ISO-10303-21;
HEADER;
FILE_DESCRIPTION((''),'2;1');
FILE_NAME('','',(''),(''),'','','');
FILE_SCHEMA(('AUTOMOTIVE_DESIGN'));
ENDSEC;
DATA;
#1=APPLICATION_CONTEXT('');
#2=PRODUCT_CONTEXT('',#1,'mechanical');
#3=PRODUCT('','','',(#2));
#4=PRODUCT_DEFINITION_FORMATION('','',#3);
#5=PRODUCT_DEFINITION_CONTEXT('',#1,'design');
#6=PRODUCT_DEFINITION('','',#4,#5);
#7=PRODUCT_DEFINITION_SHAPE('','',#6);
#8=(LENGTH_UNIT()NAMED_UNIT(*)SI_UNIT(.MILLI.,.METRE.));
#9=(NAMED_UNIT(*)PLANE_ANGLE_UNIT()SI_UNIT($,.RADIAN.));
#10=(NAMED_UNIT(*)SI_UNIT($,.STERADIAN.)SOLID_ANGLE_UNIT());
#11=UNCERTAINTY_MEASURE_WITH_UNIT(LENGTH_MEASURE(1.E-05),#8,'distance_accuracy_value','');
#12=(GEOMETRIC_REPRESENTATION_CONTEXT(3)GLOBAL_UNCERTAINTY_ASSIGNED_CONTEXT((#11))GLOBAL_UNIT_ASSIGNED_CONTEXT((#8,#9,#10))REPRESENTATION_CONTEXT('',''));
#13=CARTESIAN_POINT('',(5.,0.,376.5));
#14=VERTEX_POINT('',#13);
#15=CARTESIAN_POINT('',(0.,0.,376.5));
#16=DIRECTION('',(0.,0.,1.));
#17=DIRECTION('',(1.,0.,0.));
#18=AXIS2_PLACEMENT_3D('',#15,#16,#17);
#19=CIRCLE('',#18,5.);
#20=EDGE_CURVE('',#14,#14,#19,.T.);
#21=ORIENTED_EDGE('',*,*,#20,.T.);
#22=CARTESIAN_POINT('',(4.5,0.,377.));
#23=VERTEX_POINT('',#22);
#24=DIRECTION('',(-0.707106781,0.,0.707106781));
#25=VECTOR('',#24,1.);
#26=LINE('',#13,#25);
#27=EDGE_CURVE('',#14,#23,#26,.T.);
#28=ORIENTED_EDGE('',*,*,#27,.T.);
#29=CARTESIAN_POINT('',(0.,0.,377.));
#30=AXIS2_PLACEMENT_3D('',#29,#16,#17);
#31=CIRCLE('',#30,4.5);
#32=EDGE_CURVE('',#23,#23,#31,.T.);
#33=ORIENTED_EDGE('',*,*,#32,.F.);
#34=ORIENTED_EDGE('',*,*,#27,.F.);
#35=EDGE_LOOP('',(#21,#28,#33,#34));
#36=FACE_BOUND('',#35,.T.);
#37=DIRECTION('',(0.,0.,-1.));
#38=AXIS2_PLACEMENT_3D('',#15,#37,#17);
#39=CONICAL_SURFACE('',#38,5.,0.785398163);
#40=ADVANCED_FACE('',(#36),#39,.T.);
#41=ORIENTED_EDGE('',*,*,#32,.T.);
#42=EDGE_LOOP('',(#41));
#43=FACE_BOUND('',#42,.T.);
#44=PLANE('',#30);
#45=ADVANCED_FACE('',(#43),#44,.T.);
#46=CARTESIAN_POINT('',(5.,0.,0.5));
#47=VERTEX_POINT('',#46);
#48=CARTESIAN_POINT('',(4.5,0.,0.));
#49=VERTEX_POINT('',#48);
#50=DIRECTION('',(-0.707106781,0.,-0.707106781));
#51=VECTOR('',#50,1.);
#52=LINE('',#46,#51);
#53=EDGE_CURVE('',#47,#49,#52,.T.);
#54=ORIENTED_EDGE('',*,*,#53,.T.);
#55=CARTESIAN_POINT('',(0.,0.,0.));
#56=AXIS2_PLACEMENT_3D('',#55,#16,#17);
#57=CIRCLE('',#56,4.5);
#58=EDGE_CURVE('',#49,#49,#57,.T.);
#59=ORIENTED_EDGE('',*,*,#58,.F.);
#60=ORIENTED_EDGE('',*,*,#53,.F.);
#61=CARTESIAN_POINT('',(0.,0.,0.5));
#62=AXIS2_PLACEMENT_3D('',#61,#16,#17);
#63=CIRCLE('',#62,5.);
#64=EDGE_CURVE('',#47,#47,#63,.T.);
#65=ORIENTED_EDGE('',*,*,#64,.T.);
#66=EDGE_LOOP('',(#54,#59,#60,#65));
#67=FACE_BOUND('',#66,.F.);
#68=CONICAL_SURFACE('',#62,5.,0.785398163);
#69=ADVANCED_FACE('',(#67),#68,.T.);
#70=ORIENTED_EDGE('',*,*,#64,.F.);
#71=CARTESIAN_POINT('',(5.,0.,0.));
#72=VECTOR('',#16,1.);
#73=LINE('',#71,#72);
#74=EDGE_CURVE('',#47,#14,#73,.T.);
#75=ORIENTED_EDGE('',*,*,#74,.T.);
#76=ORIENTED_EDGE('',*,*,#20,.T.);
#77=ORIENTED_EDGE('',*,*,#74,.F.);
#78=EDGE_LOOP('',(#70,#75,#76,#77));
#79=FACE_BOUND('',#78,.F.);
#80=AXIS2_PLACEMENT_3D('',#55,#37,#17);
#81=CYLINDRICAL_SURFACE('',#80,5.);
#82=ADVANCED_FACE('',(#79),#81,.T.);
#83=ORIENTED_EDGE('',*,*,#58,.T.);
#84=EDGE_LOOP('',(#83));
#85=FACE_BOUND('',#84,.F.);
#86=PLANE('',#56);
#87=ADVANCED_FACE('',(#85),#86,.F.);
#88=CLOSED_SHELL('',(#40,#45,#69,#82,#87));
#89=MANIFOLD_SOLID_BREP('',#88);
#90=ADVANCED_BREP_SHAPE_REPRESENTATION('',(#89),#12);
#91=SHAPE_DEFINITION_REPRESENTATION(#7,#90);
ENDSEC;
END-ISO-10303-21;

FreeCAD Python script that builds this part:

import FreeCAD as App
import Part
import Sketcher


def edges_at(feature, points):
    """Names of the edges that pass closest to the given points."""
    edges = feature.Shape.Edges
    near = lambda p: min(range(len(edges)), key=lambda i: edges[i].distToShape(Part.Vertex(*p))[0])
    return sorted({f"Edge{near(p) + 1}" for p in points})

doc = App.newDocument("Part")
params = doc.addObject("Spreadsheet::Sheet", "Params")
for row, (alias, value) in enumerate([
    ("sketch1_diameter", "10 mm"),
    ("pad1_length", "377 mm"),
    ("chamfer_size", "0.5 mm"),
], start=1):
    params.set(f"A{row}", alias)
    params.set(f"B{row}", "=" + value)
    params.setAlias(f"B{row}", alias)

body = doc.addObject("PartDesign::Body", "Body")

# Sketch on XY plane
sketch1 = body.newObject("Sketcher::SketchObject", "Sketch")
sketch1.AttachmentSupport = (doc.getObject("XY_Plane"), [""])
sketch1.MapMode = "FlatFace"
sketch1.addGeometry(Part.Circle(App.Vector(0, 0, 0), App.Vector(0, 0, 1), 5), False)
sketch1.addConstraint([
    Sketcher.Constraint("Coincident", 0, 3, -1, 1),
    Sketcher.Constraint("Diameter", 0, 10.0),
])
sketch1.setExpression("Constraints[1]", "Params.sketch1_diameter")
pad1 = body.newObject("PartDesign::Pad", "Pad")
pad1.Profile = sketch1
pad1.setExpression("Length", "Params.pad1_length")
doc.recompute()

chamfer = body.newObject("PartDesign::Chamfer", "Chamfer")
chamfer.Base = (pad1, edges_at(pad1, [(-5, 0, 377), (-5, 0, 0)]))
chamfer.setExpression("Size", "Params.chamfer_size")

doc.recompute()
